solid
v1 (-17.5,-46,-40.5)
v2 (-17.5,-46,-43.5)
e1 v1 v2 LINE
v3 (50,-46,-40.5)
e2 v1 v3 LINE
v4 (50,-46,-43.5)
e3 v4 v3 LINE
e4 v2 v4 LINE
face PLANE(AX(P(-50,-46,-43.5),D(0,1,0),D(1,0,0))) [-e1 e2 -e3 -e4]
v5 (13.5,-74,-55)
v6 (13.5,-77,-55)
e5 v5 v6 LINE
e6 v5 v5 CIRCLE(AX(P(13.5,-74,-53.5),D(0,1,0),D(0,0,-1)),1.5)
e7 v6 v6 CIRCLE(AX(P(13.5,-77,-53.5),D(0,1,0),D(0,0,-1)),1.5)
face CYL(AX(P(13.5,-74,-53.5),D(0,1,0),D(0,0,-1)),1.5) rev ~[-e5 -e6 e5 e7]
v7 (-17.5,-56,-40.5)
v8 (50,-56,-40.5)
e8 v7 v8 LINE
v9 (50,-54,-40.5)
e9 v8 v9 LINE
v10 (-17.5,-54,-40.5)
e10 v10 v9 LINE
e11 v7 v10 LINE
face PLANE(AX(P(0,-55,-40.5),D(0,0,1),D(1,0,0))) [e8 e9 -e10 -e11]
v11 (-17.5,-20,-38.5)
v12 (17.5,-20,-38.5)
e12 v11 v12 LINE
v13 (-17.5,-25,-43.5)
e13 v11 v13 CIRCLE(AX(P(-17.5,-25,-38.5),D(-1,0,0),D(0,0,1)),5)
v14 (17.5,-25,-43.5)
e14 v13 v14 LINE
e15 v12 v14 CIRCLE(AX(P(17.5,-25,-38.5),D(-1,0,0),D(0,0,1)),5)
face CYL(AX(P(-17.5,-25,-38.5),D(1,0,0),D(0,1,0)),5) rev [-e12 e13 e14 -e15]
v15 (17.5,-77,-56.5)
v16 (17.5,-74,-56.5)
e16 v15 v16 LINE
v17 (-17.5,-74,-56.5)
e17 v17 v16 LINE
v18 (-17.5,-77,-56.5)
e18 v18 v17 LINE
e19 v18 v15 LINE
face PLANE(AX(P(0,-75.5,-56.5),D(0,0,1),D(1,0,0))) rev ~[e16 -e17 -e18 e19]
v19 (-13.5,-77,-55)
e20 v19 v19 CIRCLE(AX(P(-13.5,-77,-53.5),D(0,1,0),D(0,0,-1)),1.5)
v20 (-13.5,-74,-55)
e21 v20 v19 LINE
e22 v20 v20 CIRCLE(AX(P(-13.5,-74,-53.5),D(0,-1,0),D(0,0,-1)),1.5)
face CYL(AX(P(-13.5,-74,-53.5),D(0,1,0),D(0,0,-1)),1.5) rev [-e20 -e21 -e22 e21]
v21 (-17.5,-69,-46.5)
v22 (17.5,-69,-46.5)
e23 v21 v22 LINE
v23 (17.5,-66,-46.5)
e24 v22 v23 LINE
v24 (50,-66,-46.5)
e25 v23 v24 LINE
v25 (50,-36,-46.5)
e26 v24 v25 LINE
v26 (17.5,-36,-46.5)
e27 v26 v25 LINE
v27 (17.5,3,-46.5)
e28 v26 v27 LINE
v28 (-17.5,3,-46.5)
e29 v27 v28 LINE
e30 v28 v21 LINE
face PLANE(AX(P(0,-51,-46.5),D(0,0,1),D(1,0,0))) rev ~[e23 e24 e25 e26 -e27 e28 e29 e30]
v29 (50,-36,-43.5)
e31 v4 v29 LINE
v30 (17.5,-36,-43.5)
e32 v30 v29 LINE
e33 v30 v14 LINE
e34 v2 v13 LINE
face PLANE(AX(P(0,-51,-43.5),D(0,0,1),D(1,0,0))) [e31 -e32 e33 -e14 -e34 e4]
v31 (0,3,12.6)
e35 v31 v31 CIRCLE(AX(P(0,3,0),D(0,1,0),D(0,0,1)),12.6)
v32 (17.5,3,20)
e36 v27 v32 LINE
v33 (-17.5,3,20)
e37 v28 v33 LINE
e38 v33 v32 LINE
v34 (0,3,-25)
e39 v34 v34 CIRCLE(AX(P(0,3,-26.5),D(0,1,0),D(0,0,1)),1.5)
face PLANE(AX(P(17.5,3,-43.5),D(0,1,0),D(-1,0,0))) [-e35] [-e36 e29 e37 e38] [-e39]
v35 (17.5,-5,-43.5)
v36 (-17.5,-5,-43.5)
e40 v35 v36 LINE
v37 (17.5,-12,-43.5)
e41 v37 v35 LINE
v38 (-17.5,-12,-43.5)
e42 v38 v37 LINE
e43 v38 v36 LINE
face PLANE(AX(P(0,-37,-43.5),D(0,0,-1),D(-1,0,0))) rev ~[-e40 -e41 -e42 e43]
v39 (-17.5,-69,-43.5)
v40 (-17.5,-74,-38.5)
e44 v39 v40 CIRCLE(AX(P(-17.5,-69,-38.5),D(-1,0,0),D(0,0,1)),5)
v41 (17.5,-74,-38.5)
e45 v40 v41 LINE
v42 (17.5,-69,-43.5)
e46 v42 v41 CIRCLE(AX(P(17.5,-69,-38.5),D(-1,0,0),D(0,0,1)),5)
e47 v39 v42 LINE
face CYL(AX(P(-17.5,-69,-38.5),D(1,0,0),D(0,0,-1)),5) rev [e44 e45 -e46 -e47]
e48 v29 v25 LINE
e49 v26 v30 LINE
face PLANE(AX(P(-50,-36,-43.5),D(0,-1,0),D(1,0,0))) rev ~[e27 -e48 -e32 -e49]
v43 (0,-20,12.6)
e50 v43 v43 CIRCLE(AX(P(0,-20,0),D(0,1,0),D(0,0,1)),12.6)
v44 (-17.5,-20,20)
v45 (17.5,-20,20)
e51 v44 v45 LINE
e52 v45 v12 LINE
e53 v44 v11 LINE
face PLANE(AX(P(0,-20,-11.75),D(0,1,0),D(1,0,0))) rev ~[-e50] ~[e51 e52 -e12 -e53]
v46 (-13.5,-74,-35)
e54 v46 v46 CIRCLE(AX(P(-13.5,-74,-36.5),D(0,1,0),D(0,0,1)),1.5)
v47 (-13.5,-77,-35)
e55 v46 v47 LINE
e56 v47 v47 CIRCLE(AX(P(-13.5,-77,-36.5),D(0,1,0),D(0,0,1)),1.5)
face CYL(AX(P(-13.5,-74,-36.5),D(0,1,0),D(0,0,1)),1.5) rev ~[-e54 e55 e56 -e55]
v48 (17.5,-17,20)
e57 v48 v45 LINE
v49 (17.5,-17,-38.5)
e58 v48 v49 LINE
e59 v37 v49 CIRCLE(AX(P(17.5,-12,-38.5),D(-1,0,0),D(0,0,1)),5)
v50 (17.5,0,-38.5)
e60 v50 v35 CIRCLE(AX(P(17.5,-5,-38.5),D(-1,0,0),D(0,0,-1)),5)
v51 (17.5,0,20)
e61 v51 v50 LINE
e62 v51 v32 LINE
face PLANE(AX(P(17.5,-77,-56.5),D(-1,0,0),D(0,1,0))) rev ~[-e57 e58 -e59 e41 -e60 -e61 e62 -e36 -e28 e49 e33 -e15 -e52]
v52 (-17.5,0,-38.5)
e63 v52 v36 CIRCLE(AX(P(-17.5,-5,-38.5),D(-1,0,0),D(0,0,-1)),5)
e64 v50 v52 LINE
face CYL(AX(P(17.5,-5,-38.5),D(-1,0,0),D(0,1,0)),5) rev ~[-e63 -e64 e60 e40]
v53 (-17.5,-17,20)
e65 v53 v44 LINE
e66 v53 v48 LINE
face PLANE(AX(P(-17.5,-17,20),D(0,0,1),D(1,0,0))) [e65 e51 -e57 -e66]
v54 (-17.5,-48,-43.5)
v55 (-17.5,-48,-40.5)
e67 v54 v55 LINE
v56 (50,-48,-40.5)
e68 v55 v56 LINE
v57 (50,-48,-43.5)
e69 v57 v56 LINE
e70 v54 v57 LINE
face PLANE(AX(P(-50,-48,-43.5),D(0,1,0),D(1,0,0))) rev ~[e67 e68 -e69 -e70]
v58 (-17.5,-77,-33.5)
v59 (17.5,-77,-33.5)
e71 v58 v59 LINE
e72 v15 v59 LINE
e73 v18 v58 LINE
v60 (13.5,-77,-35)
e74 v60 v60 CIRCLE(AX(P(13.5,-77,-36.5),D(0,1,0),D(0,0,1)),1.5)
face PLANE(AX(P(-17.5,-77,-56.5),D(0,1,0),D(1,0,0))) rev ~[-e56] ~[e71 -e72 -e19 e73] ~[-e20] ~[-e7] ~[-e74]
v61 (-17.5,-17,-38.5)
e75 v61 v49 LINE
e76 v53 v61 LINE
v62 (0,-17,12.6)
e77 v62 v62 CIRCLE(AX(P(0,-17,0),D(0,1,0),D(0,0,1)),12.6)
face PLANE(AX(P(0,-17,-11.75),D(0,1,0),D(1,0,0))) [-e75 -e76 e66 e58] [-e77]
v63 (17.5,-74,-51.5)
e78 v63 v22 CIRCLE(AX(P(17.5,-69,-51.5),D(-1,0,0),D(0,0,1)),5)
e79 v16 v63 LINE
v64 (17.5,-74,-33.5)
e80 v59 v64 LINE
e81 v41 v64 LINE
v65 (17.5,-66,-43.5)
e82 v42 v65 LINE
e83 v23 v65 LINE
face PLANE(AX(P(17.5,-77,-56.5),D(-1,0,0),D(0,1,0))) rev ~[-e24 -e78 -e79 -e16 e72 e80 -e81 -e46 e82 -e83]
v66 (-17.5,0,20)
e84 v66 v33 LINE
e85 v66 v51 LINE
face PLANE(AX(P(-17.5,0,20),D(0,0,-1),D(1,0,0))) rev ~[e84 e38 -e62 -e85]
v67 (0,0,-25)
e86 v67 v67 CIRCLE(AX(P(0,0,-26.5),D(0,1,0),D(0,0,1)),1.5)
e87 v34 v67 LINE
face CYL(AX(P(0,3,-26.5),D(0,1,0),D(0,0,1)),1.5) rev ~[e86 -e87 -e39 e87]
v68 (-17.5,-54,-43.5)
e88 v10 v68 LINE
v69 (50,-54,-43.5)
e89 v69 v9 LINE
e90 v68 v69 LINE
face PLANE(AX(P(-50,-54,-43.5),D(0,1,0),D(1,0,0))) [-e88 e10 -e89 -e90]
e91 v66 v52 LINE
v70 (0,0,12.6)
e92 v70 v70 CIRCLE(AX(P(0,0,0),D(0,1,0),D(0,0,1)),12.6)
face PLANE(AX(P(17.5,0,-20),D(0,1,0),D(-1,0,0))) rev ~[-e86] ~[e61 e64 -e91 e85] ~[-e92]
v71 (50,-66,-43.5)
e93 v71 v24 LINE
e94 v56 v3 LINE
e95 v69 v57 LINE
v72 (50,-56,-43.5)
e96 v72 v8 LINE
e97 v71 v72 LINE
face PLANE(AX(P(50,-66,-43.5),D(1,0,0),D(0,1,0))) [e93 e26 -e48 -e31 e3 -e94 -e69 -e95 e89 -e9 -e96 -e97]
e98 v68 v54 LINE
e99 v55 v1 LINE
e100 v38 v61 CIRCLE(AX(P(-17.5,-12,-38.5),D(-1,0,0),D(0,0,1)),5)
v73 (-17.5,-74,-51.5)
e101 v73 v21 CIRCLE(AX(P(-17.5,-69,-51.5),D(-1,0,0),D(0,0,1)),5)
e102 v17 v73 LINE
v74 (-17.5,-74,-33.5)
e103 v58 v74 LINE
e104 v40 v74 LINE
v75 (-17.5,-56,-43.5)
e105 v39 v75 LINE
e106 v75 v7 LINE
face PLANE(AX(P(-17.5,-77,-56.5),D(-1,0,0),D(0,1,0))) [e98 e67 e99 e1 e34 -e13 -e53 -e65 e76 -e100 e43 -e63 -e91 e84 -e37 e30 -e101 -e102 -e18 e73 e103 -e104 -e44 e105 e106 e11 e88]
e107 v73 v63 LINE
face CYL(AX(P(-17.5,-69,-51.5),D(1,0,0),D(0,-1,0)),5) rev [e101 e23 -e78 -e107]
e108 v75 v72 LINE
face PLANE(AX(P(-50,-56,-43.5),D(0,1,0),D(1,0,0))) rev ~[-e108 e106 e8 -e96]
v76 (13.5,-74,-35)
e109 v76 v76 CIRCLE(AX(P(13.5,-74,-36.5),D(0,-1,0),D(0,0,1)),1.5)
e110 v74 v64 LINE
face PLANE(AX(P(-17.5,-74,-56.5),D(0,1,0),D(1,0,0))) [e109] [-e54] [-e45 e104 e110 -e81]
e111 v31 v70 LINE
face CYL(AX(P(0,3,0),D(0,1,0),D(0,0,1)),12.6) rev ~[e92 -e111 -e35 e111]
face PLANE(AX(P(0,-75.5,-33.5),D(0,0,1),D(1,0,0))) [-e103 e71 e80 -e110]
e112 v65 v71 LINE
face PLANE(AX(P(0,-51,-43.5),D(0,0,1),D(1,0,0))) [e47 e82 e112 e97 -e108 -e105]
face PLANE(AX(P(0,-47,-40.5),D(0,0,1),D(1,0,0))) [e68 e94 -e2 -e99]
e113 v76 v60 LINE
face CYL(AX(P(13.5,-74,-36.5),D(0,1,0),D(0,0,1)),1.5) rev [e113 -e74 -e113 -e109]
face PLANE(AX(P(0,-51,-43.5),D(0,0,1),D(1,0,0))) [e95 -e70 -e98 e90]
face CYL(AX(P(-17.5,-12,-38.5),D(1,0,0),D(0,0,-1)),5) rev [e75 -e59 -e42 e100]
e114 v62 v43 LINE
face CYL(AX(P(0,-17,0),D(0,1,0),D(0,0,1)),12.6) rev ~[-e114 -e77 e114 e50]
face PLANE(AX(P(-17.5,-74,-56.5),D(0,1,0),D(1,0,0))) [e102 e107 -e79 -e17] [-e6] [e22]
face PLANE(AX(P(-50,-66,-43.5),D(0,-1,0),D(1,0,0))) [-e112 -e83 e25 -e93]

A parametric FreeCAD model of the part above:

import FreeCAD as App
import Part
import Sketcher
from FreeCAD import Vector
Q = App.Units.Quantity


def edges_at(feature, points):
    """Names of the edges that pass closest to the given points."""
    edges = feature.Shape.Edges
    near = lambda p: min(range(len(edges)), key=lambda i: edges[i].distToShape(Part.Vertex(*p))[0])
    return sorted({f"Edge{near(p) + 1}" for p in points})


def add_polygon(sketch, points):
    """Adds a closed chain of lines whose ends are joined by coincident constraints."""
    first, n = sketch.GeometryCount, len(points)
    for a, b in zip(points, points[1:] + points[:1]):
        sketch.addGeometry(Part.LineSegment(App.Vector(*a, 0), App.Vector(*b, 0)), False)
    for i in range(n):
        sketch.addConstraint(Sketcher.Constraint("Coincident", first + i, 2, first + (i + 1) % n, 1))

doc = App.newDocument("Part")
body = doc.addObject("PartDesign::Body", "Body")

sketch1 = body.newObject("Sketcher::SketchObject", "Sketch")
sketch1.AttachmentSupport = (doc.getObject("XZ_Plane"), [""])
sketch1.MapMode = "FlatFace"
add_polygon(sketch1, [(-17.5, -20), (-17.5, 20), (17.5, 20), (17.5, -20)])
sketch1.addConstraint(Sketcher.Constraint("Vertical", 0))
sketch1.addConstraint(Sketcher.Constraint("Horizontal", 1))
sketch1.addConstraint(Sketcher.Constraint("Vertical", 2))
sketch1.addConstraint(Sketcher.Constraint("Horizontal", 3))
sketch1.addConstraint(Sketcher.Constraint("Symmetric", 0, 2, 2, 2, -1, 1))
sketch1.addConstraint(Sketcher.Constraint("DistanceX", 1, 1, 1, 2, Q("35 mm")))
sketch1.addConstraint(Sketcher.Constraint("DistanceY", 0, 1, 0, 2, Q("40 mm")))
pad1 = body.newObject("PartDesign::Pad", "Pad")
pad1.Profile = sketch1
pad1.Length = 3
pad1.Reversed = True

sketch2 = body.newObject("Sketcher::SketchObject", "Sketch001")
sketch2.AttachmentSupport = (doc.getObject("XZ_Plane"), [""])
sketch2.MapMode = "FlatFace"
sketch2.AttachmentOffset = App.Placement(Vector(0, 0, -3), App.Rotation())
sketch2.addGeometry(Part.Circle(Vector(0, 0, 0), Vector(0, 0, 1), 12.6), False)
sketch2.addConstraint(Sketcher.Constraint("Coincident", 0, 3, -1, 1))
sketch2.addConstraint(Sketcher.Constraint("Diameter", 0, Q("25.2 mm")))
pocket1 = body.newObject("PartDesign::Pocket", "Pocket")
pocket1.Profile = sketch2
pocket1.Type = "ThroughAll"
pocket1.Reversed = True

sketch3 = body.newObject("Sketcher::SketchObject", "Sketch002")
sketch3.AttachmentSupport = (doc.getObject("XY_Plane"), [""])
sketch3.MapMode = "FlatFace"
sketch3.AttachmentOffset = App.Placement(Vector(0, 0, -20), App.Rotation())
add_polygon(sketch3, [(17.5, 3), (17.5, 0), (-17.5, 0), (-17.5, 3)])
sketch3.addConstraint(Sketcher.Constraint("Vertical", 0))
sketch3.addConstraint(Sketcher.Constraint("Horizontal", 1))
sketch3.addConstraint(Sketcher.Constraint("Vertical", 2))
sketch3.addConstraint(Sketcher.Constraint("Horizontal", 3))
sketch3.addConstraint(Sketcher.Constraint("Symmetric", 0, 2, 1, 2, -1, 1))
sketch3.addConstraint(Sketcher.Constraint("DistanceX", 1, 2, 1, 1, Q("35 mm")))
sketch3.addConstraint(Sketcher.Constraint("DistanceY", 0, 2, 0, 1, Q("3 mm")))
pad2 = body.newObject("PartDesign::Pad", "Pad001")
pad2.Profile = sketch3
pad2.Length = 23.5
pad2.Reversed = True

sketch4 = body.newObject("Sketcher::SketchObject", "Sketch003")
sketch4.AttachmentSupport = (doc.getObject("XY_Plane"), [""])
sketch4.MapMode = "FlatFace"
sketch4.AttachmentOffset = App.Placement(Vector(0, 0, -43.5), App.Rotation())
add_polygon(sketch4, [(17.5, 3), (17.5, -77), (-17.5, -77), (-17.5, 3)])
sketch4.addConstraint(Sketcher.Constraint("Vertical", 0))
sketch4.addConstraint(Sketcher.Constraint("Horizontal", 1))
sketch4.addConstraint(Sketcher.Constraint("Vertical", 2))
sketch4.addConstraint(Sketcher.Constraint("Horizontal", 3))
sketch4.addConstraint(Sketcher.Constraint("DistanceX", 1, 2, 1, 1, Q("35 mm")))
sketch4.addConstraint(Sketcher.Constraint("DistanceY", 0, 2, 0, 1, Q("80 mm")))
sketch4.addConstraint(Sketcher.Constraint("DistanceY", 0, 2, -1, 1, Q("77 mm")))
sketch4.addConstraint(Sketcher.Constraint("DistanceX", -1, 1, 0, 2, Q("17.5 mm")))
pad3 = body.newObject("PartDesign::Pad", "Pad002")
pad3.Profile = sketch4
pad3.Length = 3
pad3.Reversed = True

sketch5 = body.newObject("Sketcher::SketchObject", "Sketch004")
sketch5.AttachmentSupport = (doc.getObject("XZ_Plane"), [""])
sketch5.MapMode = "FlatFace"
sketch5.AttachmentOffset = App.Placement(Vector(0, 0, 17), App.Rotation())
add_polygon(sketch5, [(-17.5, -43.5), (-17.5, 20), (17.5, 20), (17.5, -43.5)])
sketch5.addGeometry(Part.Circle(Vector(0, 0, 0), Vector(0, 0, 1), 12.6), False)
sketch5.addConstraint(Sketcher.Constraint("Vertical", 0))
sketch5.addConstraint(Sketcher.Constraint("Horizontal", 1))
sketch5.addConstraint(Sketcher.Constraint("Vertical", 2))
sketch5.addConstraint(Sketcher.Constraint("Horizontal", 3))
sketch5.addConstraint(Sketcher.Constraint("Coincident", 4, 3, -1, 1))
sketch5.addConstraint(Sketcher.Constraint("Diameter", 4, Q("25.2 mm")))
sketch5.addConstraint(Sketcher.Constraint("DistanceX", 1, 1, 1, 2, Q("35 mm")))
sketch5.addConstraint(Sketcher.Constraint("DistanceY", 0, 1, 0, 2, Q("63.5 mm")))
sketch5.addConstraint(Sketcher.Constraint("DistanceY", -1, 1, 0, 2, Q("20 mm")))
sketch5.addConstraint(Sketcher.Constraint("DistanceX", 0, 2, -1, 1, Q("17.5 mm")))
pad4 = body.newObject("PartDesign::Pad", "Pad003")
pad4.Profile = sketch5
pad4.Length = 3

sketch6 = body.newObject("Sketcher::SketchObject", "Sketch005")
sketch6.AttachmentSupport = (doc.getObject("XY_Plane"), [""])
sketch6.MapMode = "FlatFace"
sketch6.AttachmentOffset = App.Placement(Vector(0, 0, -43.5), App.Rotation())
add_polygon(sketch6, [(-17.5, -74), (-17.5, -77), (17.5, -77), (17.5, -74)])
sketch6.addConstraint(Sketcher.Constraint("Vertical", 0))
sketch6.addConstraint(Sketcher.Constraint("Horizontal", 1))
sketch6.addConstraint(Sketcher.Constraint("Vertical", 2))
sketch6.addConstraint(Sketcher.Constraint("Horizontal", 3))
sketch6.addConstraint(Sketcher.Constraint("DistanceX", 1, 1, 1, 2, Q("35 mm")))
sketch6.addConstraint(Sketcher.Constraint("DistanceY", 0, 2, 0, 1, Q("3 mm")))
sketch6.addConstraint(Sketcher.Constraint("DistanceY", 0, 2, -1, 1, Q("77 mm")))
sketch6.addConstraint(Sketcher.Constraint("DistanceX", 0, 2, -1, 1, Q("17.5 mm")))
pad5 = body.newObject("PartDesign::Pad", "Pad004")
pad5.Profile = sketch6
pad5.Type = "TwoLengths"
pad5.Length = 10
pad5.Length2 = 13
doc.recompute()

fillet = body.newObject("PartDesign::Fillet", "Fillet")
fillet.Base = (pad5, edges_at(pad5, [
    (0, 0, -43.5),
    (0, -20, -43.5),
    (0, -17, -43.5),
    (0, -74, -46.5),
    (0, -74, -43.5),
]))
fillet.Radius = 5

sketch7 = body.newObject("Sketcher::SketchObject", "Sketch006")
sketch7.AttachmentSupport = (doc.getObject("XY_Plane"), [""])
sketch7.MapMode = "FlatFace"
sketch7.AttachmentOffset = App.Placement(Vector(0, 0, -43.5), App.Rotation())
add_polygon(sketch7, [(-50, -36), (-50, -66), (50, -66), (50, -36)])
sketch7.addConstraint(Sketcher.Constraint("Vertical", 0))
sketch7.addConstraint(Sketcher.Constraint("Horizontal", 1))
sketch7.addConstraint(Sketcher.Constraint("Vertical", 2))
sketch7.addConstraint(Sketcher.Constraint("Horizontal", 3))
sketch7.addConstraint(Sketcher.Constraint("DistanceX", 1, 1, 1, 2, Q("100 mm")))
sketch7.addConstraint(Sketcher.Constraint("DistanceY", 0, 2, 0, 1, Q("30 mm")))
sketch7.addConstraint(Sketcher.Constraint("DistanceX", 0, 2, -1, 1, Q("50 mm")))
sketch7.addConstraint(Sketcher.Constraint("DistanceY", 0, 2, -1, 1, Q("66 mm")))
pad6 = body.newObject("PartDesign::Pad", "Pad005")
pad6.Profile = sketch7
pad6.Length = 3
pad6.Reversed = True

sketch8 = body.newObject("Sketcher::SketchObject", "Sketch007")
sketch8.AttachmentSupport = (doc.getObject("XY_Plane"), [""])
sketch8.MapMode = "FlatFace"
sketch8.AttachmentOffset = App.Placement(Vector(0, 0, -43.5), App.Rotation())
add_polygon(sketch8, [(-50, -46), (-50, -48), (50, -48), (50, -46)])
add_polygon(sketch8, [(-50, -54), (-50, -56), (50, -56), (50, -54)])
sketch8.addConstraint(Sketcher.Constraint("Vertical", 0))
sketch8.addConstraint(Sketcher.Constraint("Horizontal", 1))
sketch8.addConstraint(Sketcher.Constraint("Vertical", 2))
sketch8.addConstraint(Sketcher.Constraint("Horizontal", 3))
sketch8.addConstraint(Sketcher.Constraint("Vertical", 4))
sketch8.addConstraint(Sketcher.Constraint("Horizontal", 5))
sketch8.addConstraint(Sketcher.Constraint("Vertical", 6))
sketch8.addConstraint(Sketcher.Constraint("Horizontal", 7))
sketch8.addConstraint(Sketcher.Constraint("Vertical", 3, 2, 4, 2))
sketch8.addConstraint(Sketcher.Constraint("Vertical", 2, 2, 5, 2))
sketch8.addConstraint(Sketcher.Constraint("Equal", 2, 4))
sketch8.addConstraint(Sketcher.Constraint("DistanceX", 1, 1, 1, 2, Q("100 mm")))
sketch8.addConstraint(Sketcher.Constraint("DistanceY", 0, 2, 0, 1, Q("2 mm")))
sketch8.addConstraint(Sketcher.Constraint("DistanceX", 0, 2, -1, 1, Q("50 mm")))
sketch8.addConstraint(Sketcher.Constraint("DistanceY", 0, 2, -1, 1, Q("48 mm")))
sketch8.addConstraint(Sketcher.Constraint("DistanceY", 4, 2, -1, 1, Q("56 mm")))
pad7 = body.newObject("PartDesign::Pad", "Pad006")
pad7.Profile = sketch8
pad7.Length = 3

sketch9 = body.newObject("Sketcher::SketchObject", "Sketch008")
sketch9.AttachmentSupport = (doc.getObject("XZ_Plane"), [""])
sketch9.MapMode = "FlatFace"
sketch9.AttachmentOffset = App.Placement(Vector(0, 0, 74), App.Rotation())
sketch9.addGeometry(Part.Circle(Vector(-13.5, -36.5, 0), Vector(0, 0, 1), 1.5), False)
sketch9.addConstraint(Sketcher.Constraint("Diameter", 0, Q("3 mm")))
sketch9.addConstraint(Sketcher.Constraint("DistanceX", 0, 3, -1, 1, Q("13.5 mm")))
sketch9.addConstraint(Sketcher.Constraint("DistanceY", 0, 3, -1, 1, Q("36.5 mm")))
pocket2 = body.newObject("PartDesign::Pocket", "Pocket001")
pocket2.Profile = sketch9
pocket2.Type = "ThroughAll"
pocket2.Reversed = True
doc.recompute()

mirrored = body.newObject("PartDesign::Mirrored", "Mirrored")
mirrored.Originals = [pocket2]
mirrored.MirrorPlane = (doc.getObject("YZ_Plane"), [""])
body.Tip = mirrored
doc.recompute()

datumplane = body.newObject("PartDesign::Plane", "DatumPlane")
datumplane.AttachmentSupport = (doc.getObject("XY_Plane"), [""])
datumplane.MapMode = "FlatFace"
datumplane.AttachmentOffset = App.Placement(Vector(0, 0, -45), App.Rotation())
mirrored2 = body.newObject("PartDesign::Mirrored", "Mirrored001")
mirrored2.Originals = [pocket2]
mirrored2.MirrorPlane = (datumplane, [""])
body.Tip = mirrored2

sketch10 = body.newObject("Sketcher::SketchObject", "Sketch009")
sketch10.AttachmentSupport = (doc.getObject("XZ_Plane"), [""])
sketch10.MapMode = "FlatFace"
sketch10.AttachmentOffset = App.Placement(Vector(0, 0, 74), App.Rotation())
sketch10.addGeometry(Part.Circle(Vector(13.5, -53.5, 0), Vector(0, 0, 1), 1.5), False)
sketch10.addConstraint(Sketcher.Constraint("Diameter", 0, Q("3 mm")))
sketch10.addConstraint(Sketcher.Constraint("DistanceX", -1, 1, 0, 3, Q("13.5 mm")))
sketch10.addConstraint(Sketcher.Constraint("DistanceY", 0, 3, -1, 1, Q("53.5 mm")))
pocket3 = body.newObject("PartDesign::Pocket", "Pocket002")
pocket3.Profile = sketch10
pocket3.Type = "ThroughAll"
pocket3.Reversed = True

sketch11 = body.newObject("Sketcher::SketchObject", "Sketch010")
sketch11.AttachmentSupport = (doc.getObject("YZ_Plane"), [""])
sketch11.MapMode = "FlatFace"
sketch11.AttachmentOffset = App.Placement(Vector(0, 0, -50), App.Rotation())
add_polygon(sketch11, [(-36, -43.5), (-36, -46.5), (-66, -46.5), (-66, -43.5), (-56, -43.5), (-56, -40.5), (-54, -40.5), (-54, -43.5), (-48, -43.5), (-48, -40.5), (-46, -40.5), (-46, -43.5)])
sketch11.addConstraint(Sketcher.Constraint("Vertical", 0))
sketch11.addConstraint(Sketcher.Constraint("Horizontal", 1))
sketch11.addConstraint(Sketcher.Constraint("Vertical", 2))
sketch11.addConstraint(Sketcher.Constraint("Horizontal", 3))
sketch11.addConstraint(Sketcher.Constraint("Vertical", 4))
sketch11.addConstraint(Sketcher.Constraint("Horizontal", 5))
sketch11.addConstraint(Sketcher.Constraint("Vertical", 6))
sketch11.addConstraint(Sketcher.Constraint("Horizontal", 7))
sketch11.addConstraint(Sketcher.Constraint("Vertical", 8))
sketch11.addConstraint(Sketcher.Constraint("Horizontal", 9))
sketch11.addConstraint(Sketcher.Constraint("Vertical", 10))
sketch11.addConstraint(Sketcher.Constraint("Horizontal", 11))
sketch11.addConstraint(Sketcher.Constraint("Horizontal", 3, 2, 6, 2))
sketch11.addConstraint(Sketcher.Constraint("Horizontal", 5, 2, 8, 2))
sketch11.addConstraint(Sketcher.Constraint("Horizontal", 7, 2, 10, 2))
sketch11.addConstraint(Sketcher.Constraint("Equal", 5, 9))
sketch11.addConstraint(Sketcher.Constraint("Equal", 3, 11))
sketch11.addConstraint(Sketcher.Constraint("Equal", 2, 4))
sketch11.addConstraint(Sketcher.Constraint("DistanceX", 1, 2, 1, 1, Q("30 mm")))
sketch11.addConstraint(Sketcher.Constraint("DistanceX", 3, 1, 3, 2, Q("10 mm")))
sketch11.addConstraint(Sketcher.Constraint("DistanceX", 5, 1, 5, 2, Q("2 mm")))
sketch11.addConstraint(Sketcher.Constraint("DistanceY", 0, 2, 0, 1, Q("3 mm")))
sketch11.addConstraint(Sketcher.Constraint("DistanceX", 0, 2, -1, 1, Q("36 mm")))
sketch11.addConstraint(Sketcher.Constraint("DistanceY", 0, 2, -1, 1, Q("46.5 mm")))
pocket4 = body.newObject("PartDesign::Pocket", "Pocket003")
pocket4.Profile = sketch11
pocket4.Length = 32.5
pocket4.Reversed = True

sketch12 = body.newObject("Sketcher::SketchObject", "Sketch011")
sketch12.AttachmentSupport = (doc.getObject("XZ_Plane"), [""])
sketch12.MapMode = "FlatFace"
sketch12.AttachmentOffset = App.Placement(Vector(0, 0, -3), App.Rotation())
sketch12.addGeometry(Part.Circle(Vector(0, -26.5, 0), Vector(0, 0, 1), 1.5), False)
sketch12.addConstraint(Sketcher.Constraint("PointOnObject", 0, 3, -2))
sketch12.addConstraint(Sketcher.Constraint("Diameter", 0, Q("3 mm")))
sketch12.addConstraint(Sketcher.Constraint("DistanceY", 0, 3, -1, 1, Q("26.5 mm")))
pocket5 = body.newObject("PartDesign::Pocket", "Pocket004")
pocket5.Profile = sketch12
pocket5.Length = 10
pocket5.Reversed = True

doc.recompute()
